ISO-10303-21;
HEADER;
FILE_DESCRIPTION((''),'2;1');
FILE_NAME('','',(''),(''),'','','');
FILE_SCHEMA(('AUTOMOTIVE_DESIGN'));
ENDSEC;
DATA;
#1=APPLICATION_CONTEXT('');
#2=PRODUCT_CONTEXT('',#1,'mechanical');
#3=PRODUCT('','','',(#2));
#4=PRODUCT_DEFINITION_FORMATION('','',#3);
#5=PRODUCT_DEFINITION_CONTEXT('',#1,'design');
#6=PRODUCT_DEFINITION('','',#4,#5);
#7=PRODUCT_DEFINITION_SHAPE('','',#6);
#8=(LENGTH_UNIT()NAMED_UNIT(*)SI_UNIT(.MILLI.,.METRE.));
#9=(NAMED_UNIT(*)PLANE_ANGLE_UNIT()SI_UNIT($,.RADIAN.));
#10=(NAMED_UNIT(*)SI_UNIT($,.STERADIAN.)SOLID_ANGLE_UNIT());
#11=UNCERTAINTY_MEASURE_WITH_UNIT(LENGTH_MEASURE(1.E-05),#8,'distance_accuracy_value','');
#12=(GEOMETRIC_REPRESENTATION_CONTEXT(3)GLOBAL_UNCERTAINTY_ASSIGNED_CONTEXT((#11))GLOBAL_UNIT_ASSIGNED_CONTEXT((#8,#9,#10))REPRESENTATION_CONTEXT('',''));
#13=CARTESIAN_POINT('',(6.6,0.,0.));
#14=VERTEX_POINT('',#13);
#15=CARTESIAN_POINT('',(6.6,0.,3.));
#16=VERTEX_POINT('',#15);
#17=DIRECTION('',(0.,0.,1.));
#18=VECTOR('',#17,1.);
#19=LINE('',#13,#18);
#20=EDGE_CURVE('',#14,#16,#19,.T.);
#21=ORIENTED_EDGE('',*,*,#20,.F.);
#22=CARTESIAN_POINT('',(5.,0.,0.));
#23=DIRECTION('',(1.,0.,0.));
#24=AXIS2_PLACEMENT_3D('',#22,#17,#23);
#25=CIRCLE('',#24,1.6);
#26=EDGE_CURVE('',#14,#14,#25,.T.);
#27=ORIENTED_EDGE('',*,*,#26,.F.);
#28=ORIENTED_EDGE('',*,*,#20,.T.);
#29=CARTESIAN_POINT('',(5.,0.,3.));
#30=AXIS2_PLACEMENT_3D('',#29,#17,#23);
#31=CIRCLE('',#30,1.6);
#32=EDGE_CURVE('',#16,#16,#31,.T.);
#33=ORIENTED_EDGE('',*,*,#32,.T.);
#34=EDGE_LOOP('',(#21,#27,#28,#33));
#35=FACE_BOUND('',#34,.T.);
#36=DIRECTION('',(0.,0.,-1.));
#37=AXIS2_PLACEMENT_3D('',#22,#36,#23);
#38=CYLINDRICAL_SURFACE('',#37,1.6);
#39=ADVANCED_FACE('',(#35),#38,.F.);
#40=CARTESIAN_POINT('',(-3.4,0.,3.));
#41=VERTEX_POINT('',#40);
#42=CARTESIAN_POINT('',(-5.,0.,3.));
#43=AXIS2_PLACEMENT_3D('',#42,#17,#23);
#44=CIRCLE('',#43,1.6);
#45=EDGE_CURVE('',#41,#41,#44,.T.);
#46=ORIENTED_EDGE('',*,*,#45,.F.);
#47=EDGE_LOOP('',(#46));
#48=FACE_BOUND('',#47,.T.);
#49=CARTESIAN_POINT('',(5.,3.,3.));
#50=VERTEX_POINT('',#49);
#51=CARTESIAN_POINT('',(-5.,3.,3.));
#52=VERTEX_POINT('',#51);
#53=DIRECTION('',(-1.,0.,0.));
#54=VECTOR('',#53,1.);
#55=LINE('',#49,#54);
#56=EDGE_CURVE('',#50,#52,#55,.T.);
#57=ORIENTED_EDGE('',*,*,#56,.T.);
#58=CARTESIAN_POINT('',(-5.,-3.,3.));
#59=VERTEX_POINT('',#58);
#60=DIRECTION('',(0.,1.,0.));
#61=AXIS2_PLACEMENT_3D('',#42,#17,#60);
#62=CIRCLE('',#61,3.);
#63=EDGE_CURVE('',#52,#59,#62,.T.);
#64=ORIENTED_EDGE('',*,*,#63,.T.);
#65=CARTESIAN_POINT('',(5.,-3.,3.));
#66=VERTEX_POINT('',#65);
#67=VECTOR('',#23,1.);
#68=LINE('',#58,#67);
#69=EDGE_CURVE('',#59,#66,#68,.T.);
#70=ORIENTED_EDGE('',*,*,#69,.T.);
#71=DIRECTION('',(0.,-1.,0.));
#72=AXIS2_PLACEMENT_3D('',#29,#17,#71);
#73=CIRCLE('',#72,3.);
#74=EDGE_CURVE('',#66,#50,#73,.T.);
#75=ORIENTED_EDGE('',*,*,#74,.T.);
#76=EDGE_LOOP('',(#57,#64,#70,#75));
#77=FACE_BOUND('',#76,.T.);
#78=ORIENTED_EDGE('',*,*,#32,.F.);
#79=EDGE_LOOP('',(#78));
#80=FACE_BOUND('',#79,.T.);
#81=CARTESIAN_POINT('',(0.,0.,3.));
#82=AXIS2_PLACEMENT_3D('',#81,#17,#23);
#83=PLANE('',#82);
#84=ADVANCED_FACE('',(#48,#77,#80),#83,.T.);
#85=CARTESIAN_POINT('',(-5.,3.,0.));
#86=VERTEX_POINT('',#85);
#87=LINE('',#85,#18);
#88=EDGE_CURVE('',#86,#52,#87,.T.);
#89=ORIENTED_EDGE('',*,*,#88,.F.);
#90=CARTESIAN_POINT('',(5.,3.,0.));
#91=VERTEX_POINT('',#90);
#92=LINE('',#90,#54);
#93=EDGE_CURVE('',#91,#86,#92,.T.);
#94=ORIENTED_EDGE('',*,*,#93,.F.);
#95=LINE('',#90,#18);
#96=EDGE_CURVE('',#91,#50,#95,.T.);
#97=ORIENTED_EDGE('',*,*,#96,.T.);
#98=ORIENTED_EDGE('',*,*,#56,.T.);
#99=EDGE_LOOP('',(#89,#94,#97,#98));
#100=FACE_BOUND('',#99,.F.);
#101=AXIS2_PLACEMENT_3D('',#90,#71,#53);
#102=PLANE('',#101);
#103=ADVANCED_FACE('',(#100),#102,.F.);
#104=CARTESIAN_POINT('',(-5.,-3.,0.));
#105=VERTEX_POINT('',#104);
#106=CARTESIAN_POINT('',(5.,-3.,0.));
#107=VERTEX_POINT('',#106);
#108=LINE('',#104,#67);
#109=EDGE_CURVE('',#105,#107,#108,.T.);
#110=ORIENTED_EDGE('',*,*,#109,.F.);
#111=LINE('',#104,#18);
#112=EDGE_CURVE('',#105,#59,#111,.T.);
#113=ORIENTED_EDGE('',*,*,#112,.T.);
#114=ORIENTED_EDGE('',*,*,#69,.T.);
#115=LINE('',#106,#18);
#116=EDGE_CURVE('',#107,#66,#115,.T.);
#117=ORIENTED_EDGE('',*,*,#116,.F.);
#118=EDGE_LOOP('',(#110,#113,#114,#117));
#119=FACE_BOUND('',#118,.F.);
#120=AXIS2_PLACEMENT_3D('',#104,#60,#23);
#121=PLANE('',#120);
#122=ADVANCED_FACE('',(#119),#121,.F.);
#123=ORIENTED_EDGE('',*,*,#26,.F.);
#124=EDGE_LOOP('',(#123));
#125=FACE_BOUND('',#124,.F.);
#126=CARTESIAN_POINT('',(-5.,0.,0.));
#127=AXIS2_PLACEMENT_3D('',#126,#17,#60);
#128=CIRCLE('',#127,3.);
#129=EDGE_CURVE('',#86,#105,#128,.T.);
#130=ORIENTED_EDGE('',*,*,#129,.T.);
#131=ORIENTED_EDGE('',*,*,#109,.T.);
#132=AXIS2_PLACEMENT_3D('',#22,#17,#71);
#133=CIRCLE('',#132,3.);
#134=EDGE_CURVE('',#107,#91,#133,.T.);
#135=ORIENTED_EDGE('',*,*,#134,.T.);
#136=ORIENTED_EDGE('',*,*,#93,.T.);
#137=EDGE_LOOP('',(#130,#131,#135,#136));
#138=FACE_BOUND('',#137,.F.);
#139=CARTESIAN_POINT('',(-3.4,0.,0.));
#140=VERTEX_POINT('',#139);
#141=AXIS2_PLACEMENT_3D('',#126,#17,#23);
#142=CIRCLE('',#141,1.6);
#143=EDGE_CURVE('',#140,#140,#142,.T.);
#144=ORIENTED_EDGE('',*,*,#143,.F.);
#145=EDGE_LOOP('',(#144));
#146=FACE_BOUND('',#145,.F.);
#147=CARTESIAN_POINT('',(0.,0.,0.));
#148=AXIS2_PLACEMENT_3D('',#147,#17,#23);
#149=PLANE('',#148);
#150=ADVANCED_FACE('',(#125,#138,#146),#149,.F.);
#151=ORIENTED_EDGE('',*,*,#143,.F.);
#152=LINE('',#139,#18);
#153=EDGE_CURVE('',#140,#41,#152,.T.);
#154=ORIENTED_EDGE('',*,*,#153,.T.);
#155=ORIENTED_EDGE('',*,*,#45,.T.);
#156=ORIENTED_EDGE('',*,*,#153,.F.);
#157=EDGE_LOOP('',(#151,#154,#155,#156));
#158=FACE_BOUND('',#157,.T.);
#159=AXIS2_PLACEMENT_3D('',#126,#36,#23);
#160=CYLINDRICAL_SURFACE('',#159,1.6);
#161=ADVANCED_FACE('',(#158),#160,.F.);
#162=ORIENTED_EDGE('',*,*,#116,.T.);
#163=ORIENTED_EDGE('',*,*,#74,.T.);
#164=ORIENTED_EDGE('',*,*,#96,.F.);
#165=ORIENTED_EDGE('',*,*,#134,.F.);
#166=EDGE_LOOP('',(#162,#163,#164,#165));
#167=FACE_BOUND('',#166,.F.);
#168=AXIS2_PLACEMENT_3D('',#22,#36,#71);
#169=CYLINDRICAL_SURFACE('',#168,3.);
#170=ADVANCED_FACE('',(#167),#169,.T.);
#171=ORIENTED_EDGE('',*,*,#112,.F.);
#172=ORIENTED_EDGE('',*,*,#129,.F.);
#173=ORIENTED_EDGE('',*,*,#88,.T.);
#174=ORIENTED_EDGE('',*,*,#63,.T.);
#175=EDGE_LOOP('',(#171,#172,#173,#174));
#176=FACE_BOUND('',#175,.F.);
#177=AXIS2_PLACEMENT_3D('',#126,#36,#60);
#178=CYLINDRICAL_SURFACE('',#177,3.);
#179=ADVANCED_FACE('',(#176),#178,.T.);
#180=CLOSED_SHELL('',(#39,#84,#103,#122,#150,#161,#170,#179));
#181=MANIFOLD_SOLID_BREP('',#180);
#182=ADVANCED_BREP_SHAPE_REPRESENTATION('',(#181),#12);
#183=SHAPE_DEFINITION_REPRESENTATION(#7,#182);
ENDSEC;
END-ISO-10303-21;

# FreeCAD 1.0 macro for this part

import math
import FreeCAD as App
import Part
import Sketcher
from FreeCAD import Vector
Q = App.Units.Quantity

doc = App.newDocument("Part")
body = doc.addObject("PartDesign::Body", "Body")

# Sketch on XY plane
sketch1 = body.newObject("Sketcher::SketchObject", "Sketch")
sketch1.AttachmentSupport = (doc.getObject("XY_Plane"), [""])
sketch1.MapMode = "FlatFace"
sketch1.addGeometry(Part.ArcOfCircle(Part.Circle(Vector(-5, 0, 0), Vector(0, 0, 1), 3), math.radians(90), math.radians(270)), False)
sketch1.addGeometry(Part.LineSegment(Vector(-5, -3, 0), Vector(5, -3, 0)), False)
sketch1.addGeometry(Part.ArcOfCircle(Part.Circle(Vector(5, 0, 0), Vector(0, 0, 1), 3), math.radians(-90), math.radians(90)), False)
sketch1.addGeometry(Part.LineSegment(Vector(5, 3, 0), Vector(-5, 3, 0)), False)
sketch1.addGeometry(Part.Circle(Vector(-5, 0, 0), Vector(0, 0, 1), 1.6), False)
sketch1.addGeometry(Part.Circle(Vector(5, 0, 0), Vector(0, 0, 1), 1.6), False)
sketch1.addConstraint(Sketcher.Constraint("Tangent", 0, 2, 1, 1))
sketch1.addConstraint(Sketcher.Constraint("Tangent", 1, 2, 2, 1))
sketch1.addConstraint(Sketcher.Constraint("Tangent", 2, 2, 3, 1))
sketch1.addConstraint(Sketcher.Constraint("Tangent", 3, 2, 0, 1))
sketch1.addConstraint(Sketcher.Constraint("Horizontal", 1))
sketch1.addConstraint(Sketcher.Constraint("Horizontal", 3))
sketch1.addConstraint(Sketcher.Constraint("Coincident", 4, 3, 0, 3))
sketch1.addConstraint(Sketcher.Constraint("Coincident", 5, 3, 2, 3))
sketch1.addConstraint(Sketcher.Constraint("Equal", 4, 5))
sketch1.addConstraint(Sketcher.Constraint("Symmetric", 0, 3, 2, 3, -1, 1))
sketch1.addConstraint(Sketcher.Constraint("Radius", 0, Q("3 mm")))
sketch1.addConstraint(Sketcher.Constraint("Diameter", 4, Q("3.2 mm")))
sketch1.addConstraint(Sketcher.Constraint("DistanceX", 1, 1, 1, 2, Q("10 mm")))
pad1 = body.newObject("PartDesign::Pad", "Pad")
pad1.Profile = sketch1
pad1.Length = 3

doc.recompute()
